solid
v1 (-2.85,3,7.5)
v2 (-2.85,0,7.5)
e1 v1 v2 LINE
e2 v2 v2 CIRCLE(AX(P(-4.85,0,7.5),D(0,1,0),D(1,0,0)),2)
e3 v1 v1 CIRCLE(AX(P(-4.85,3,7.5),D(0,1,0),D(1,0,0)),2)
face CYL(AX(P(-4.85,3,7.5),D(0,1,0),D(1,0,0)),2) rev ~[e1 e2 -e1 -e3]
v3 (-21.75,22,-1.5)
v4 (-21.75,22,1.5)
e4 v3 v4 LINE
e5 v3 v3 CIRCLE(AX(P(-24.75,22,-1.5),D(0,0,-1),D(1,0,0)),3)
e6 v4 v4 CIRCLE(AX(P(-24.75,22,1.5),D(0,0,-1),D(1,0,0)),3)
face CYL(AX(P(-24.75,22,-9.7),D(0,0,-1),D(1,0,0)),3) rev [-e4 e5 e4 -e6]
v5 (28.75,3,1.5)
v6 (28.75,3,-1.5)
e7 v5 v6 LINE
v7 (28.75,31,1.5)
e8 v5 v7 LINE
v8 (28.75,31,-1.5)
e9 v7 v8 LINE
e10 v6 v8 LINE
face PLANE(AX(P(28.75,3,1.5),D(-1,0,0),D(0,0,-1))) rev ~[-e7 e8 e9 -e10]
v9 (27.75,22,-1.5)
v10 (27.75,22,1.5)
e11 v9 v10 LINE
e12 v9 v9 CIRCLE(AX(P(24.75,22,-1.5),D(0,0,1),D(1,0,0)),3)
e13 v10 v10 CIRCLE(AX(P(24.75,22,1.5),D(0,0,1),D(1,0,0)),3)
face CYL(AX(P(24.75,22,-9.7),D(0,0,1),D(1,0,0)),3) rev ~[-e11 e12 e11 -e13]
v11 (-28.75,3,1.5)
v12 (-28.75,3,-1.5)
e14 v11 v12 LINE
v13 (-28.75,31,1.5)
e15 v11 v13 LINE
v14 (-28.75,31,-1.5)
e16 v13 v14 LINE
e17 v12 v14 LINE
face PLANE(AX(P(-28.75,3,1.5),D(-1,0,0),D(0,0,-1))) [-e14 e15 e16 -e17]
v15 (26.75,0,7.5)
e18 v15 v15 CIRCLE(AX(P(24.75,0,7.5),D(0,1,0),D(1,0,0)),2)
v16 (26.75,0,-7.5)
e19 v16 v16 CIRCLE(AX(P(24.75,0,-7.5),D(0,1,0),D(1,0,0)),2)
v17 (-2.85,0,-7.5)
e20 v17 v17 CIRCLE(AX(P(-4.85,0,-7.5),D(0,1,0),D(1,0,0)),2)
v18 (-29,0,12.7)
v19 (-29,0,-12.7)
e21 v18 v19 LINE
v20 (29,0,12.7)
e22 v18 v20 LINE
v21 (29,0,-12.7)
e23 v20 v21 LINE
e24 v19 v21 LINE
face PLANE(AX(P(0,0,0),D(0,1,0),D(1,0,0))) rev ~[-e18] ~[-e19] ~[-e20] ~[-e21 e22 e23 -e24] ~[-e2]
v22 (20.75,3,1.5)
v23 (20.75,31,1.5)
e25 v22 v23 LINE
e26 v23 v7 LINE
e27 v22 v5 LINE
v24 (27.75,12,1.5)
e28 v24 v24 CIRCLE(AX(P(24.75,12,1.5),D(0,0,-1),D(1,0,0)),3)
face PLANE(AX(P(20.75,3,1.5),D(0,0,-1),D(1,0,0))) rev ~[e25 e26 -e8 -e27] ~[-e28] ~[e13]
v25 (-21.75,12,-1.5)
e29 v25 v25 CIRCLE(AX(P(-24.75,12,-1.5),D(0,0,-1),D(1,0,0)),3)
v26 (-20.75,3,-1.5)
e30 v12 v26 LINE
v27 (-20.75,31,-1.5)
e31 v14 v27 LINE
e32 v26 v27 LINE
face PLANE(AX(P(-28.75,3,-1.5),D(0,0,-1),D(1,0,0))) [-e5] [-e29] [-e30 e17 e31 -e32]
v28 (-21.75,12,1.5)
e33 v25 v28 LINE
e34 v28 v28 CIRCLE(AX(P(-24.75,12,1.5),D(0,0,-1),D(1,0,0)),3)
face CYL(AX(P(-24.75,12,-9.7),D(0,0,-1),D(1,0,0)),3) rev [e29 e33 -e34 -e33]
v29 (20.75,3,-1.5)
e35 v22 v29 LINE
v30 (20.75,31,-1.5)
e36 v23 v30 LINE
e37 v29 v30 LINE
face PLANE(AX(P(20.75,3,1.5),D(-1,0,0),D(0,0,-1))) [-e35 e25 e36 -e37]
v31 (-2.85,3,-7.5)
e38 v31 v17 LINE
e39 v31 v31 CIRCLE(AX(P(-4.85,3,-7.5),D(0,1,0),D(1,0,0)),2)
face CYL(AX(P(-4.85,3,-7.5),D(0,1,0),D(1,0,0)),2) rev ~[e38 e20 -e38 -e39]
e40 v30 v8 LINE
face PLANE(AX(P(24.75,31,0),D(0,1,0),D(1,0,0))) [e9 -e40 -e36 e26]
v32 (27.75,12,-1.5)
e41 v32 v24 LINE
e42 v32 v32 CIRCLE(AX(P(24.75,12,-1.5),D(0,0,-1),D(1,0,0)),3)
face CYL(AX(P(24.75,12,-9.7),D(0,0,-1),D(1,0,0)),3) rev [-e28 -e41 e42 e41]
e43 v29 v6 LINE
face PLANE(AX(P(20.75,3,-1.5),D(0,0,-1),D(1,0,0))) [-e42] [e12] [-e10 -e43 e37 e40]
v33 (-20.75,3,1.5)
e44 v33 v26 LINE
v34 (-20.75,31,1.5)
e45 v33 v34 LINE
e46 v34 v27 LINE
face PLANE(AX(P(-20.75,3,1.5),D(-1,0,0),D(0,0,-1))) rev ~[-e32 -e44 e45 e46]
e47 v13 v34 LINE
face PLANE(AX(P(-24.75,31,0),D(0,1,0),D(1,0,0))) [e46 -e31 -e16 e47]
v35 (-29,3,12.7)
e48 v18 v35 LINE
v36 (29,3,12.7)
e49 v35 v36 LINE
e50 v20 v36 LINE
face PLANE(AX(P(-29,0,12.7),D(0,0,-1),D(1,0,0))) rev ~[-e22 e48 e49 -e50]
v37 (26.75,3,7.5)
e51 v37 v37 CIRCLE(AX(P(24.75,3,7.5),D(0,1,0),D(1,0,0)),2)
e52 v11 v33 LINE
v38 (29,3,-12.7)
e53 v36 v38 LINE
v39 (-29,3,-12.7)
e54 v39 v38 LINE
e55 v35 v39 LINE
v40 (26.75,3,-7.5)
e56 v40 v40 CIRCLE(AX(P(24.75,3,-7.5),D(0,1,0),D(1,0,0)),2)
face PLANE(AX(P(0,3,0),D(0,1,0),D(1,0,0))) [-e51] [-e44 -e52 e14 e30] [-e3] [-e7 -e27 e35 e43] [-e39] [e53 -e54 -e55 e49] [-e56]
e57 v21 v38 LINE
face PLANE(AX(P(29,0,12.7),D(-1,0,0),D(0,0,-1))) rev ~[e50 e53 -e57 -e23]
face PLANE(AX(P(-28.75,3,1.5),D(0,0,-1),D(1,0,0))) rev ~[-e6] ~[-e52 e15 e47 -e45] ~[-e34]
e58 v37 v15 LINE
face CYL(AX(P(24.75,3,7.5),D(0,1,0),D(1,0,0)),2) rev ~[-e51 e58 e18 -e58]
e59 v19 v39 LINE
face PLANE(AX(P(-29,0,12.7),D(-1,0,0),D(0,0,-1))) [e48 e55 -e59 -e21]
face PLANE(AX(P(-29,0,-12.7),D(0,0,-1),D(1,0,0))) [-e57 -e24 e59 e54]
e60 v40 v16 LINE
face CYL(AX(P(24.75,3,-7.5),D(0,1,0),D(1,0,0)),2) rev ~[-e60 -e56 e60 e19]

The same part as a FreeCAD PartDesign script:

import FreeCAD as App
import Part
import Sketcher

V = App.Vector
Q = App.Units.Quantity


def add_polygon(sketch, points):
    """Adds a closed chain of lines whose ends are joined by coincident constraints."""
    first, n = sketch.GeometryCount, len(points)
    for a, b in zip(points, points[1:] + points[:1]):
        sketch.addGeometry(Part.LineSegment(App.Vector(*a, 0), App.Vector(*b, 0)), False)
    for i in range(n):
        sketch.addConstraint(Sketcher.Constraint("Coincident", first + i, 2, first + (i + 1) % n, 1))

doc = App.newDocument("Part")
body = doc.addObject("PartDesign::Body", "Body")

sketch1 = body.newObject("Sketcher::SketchObject", "Sketch")
sketch1.AttachmentSupport = (doc.getObject("XZ_Plane"), [""])
sketch1.MapMode = "FlatFace"
add_polygon(sketch1, [(-29, -13), (-29, 13), (29, 13), (29, -13)])
sketch1.addConstraint([
    Sketcher.Constraint("Vertical", 0),
    Sketcher.Constraint("Horizontal", 1),
    Sketcher.Constraint("Vertical", 2),
    Sketcher.Constraint("Horizontal", 3),
    Sketcher.Constraint("Symmetric", 0, 2, 2, 2, -1, 1),
    Sketcher.Constraint("DistanceX", 1, 1, 1, 2, Q("58 mm")),
    Sketcher.Constraint("DistanceY", 0, 1, 0, 2, Q("25.4 mm")),
])
pad1 = body.newObject("PartDesign::Pad", "Pad")
pad1.Profile = sketch1
pad1.Length = 3
pad1.Reversed = True

sketch2 = body.newObject("Sketcher::SketchObject", "Sketch001")
sketch2.AttachmentSupport = (doc.getObject("XZ_Plane"), [""])
sketch2.MapMode = "FlatFace"
sketch2.AttachmentOffset = App.Placement(V(0, 0, -3), App.Rotation())
add_polygon(sketch2, [(-28.8, -12.7), (-28.8, -9.7), (-20.8, -9.7), (-20.8, -12.7)])
add_polygon(sketch2, [(20.8, -12.7), (20.8, -9.7), (28.8, -9.7), (28.8, -12.7)])
add_polygon(sketch2, [(-28.8, -1.5), (-28.8, 1.5), (-20.8, 1.5), (-20.8, -1.5)])
add_polygon(sketch2, [(20.8, -1.5), (20.8, 1.5), (28.8, 1.5), (28.8, -1.5)])
sketch2.addConstraint([
    Sketcher.Constraint("Vertical", 0),
    Sketcher.Constraint("Horizontal", 1),
    Sketcher.Constraint("Vertical", 2),
    Sketcher.Constraint("Horizontal", 3),
    Sketcher.Constraint("Vertical", 4),
    Sketcher.Constraint("Horizontal", 5),
    Sketcher.Constraint("Vertical", 6),
    Sketcher.Constraint("Horizontal", 7),
    Sketcher.Constraint("Vertical", 8),
    Sketcher.Constraint("Horizontal", 9),
    Sketcher.Constraint("Vertical", 10),
    Sketcher.Constraint("Horizontal", 11),
    Sketcher.Constraint("Vertical", 12),
    Sketcher.Constraint("Horizontal", 13),
    Sketcher.Constraint("Vertical", 14),
    Sketcher.Constraint("Horizontal", 15),
    Sketcher.Constraint("Symmetric", 10, 2, 12, 2, -1, 1),
    Sketcher.Constraint("Symmetric", 8, 2, 14, 2, -1, 1),
    Sketcher.Constraint("Symmetric", 1, 2, 4, 2, -2),
    Sketcher.Constraint("Symmetric", 3, 2, 6, 2, -2),
    Sketcher.Constraint("Horizontal", 9, 2, 12, 2),
    Sketcher.Constraint("Vertical", 3, 2, 8, 2),
    Sketcher.Constraint("Vertical", 2, 2, 9, 2),
    Sketcher.Constraint("Equal", 6, 8),
    Sketcher.Constraint("DistanceX", 1, 1, 1, 2, Q("8 mm")),
    Sketcher.Constraint("DistanceY", 0, 1, 0, 2, Q("3 mm")),
    Sketcher.Constraint("DistanceY", 0, 2, -1, 1, Q("9.7 mm")),
    Sketcher.Constraint("DistanceX", 1, 2, 4, 2, Q("41.5 mm")),
])
pad2 = body.newObject("PartDesign::Pad", "Pad001")
pad2.Profile = sketch2
pad2.Length = 28
pad2.Reversed = True

sketch3 = body.newObject("Sketcher::SketchObject", "Sketch002")
sketch3.AttachmentSupport = (doc.getObject("XY_Plane"), [""])
sketch3.MapMode = "FlatFace"
sketch3.AttachmentOffset = App.Placement(V(0, 0, -9.7), App.Rotation())
sketch3.addGeometry([
    Part.Circle(V(-24.8, 12, 0), V(0, 0, 1), 3),
    Part.Circle(V(-24.8, 22, 0), V(0, 0, 1), 3),
    Part.Circle(V(24.8, 12, 0), V(0, 0, 1), 3),
    Part.Circle(V(24.8, 22, 0), V(0, 0, 1), 3),
], False)
sketch3.addConstraint([
    Sketcher.Constraint("Equal", 0, 1),
    Sketcher.Constraint("Equal", 1, 2),
    Sketcher.Constraint("Equal", 2, 3),
    Sketcher.Constraint("Symmetric", 0, 3, 2, 3, -2),
    Sketcher.Constraint("Symmetric", 1, 3, 3, 3, -2),
    Sketcher.Constraint("Vertical", 0, 3, 1, 3),
    Sketcher.Constraint("Diameter", 0, Q("6 mm")),
    Sketcher.Constraint("DistanceY", -1, 1, 0, 3, Q("12 mm")),
    Sketcher.Constraint("DistanceY", -1, 1, 1, 3, Q("22 mm")),
    Sketcher.Constraint("DistanceX", 0, 3, 2, 3, Q("49.5 mm")),
])
pocket1 = body.newObject("PartDesign::Pocket", "Pocket")
pocket1.Profile = sketch3
pocket1.Length = 24
pocket1.Midplane = True

sketch4 = body.newObject("Sketcher::SketchObject", "Sketch003")
sketch4.AttachmentSupport = (doc.getObject("XZ_Plane"), [""])
sketch4.MapMode = "FlatFace"
sketch4.AttachmentOffset = App.Placement(V(0, 0, -3), App.Rotation())
sketch4.addGeometry([
    Part.Circle(V(24.8, 7.5, 0), V(0, 0, 1), 2),
    Part.Circle(V(24.8, -7.5, 0), V(0, 0, 1), 2),
    Part.Circle(V(-4.8, -7.5, 0), V(0, 0, 1), 2),
    Part.Circle(V(-4.8, 7.5, 0), V(0, 0, 1), 2),
], False)
sketch4.addConstraint([
    Sketcher.Constraint("Equal", 0, 1),
    Sketcher.Constraint("Equal", 1, 2),
    Sketcher.Constraint("Equal", 2, 3),
    Sketcher.Constraint("Symmetric", 0, 3, 1, 3, -1),
    Sketcher.Constraint("Symmetric", 2, 3, 3, 3, -1),
    Sketcher.Constraint("Horizontal", 1, 3, 2, 3),
    Sketcher.Constraint("Diameter", 0, Q("4 mm")),
    Sketcher.Constraint("DistanceY", 1, 3, 0, 3, Q("15 mm")),
    Sketcher.Constraint("DistanceX", 2, 3, 1, 3, Q("29.6 mm")),
    Sketcher.Constraint("DistanceX", -1, 1, 0, 3, Q("24.75 mm")),
])
pocket2 = body.newObject("PartDesign::Pocket", "Pocket001")
pocket2.Profile = sketch4
pocket2.Length = 22
pocket2.Reversed = True

sketch5 = body.newObject("Sketcher::SketchObject", "Sketch004")
sketch5.AttachmentSupport = (doc.getObject("XZ_Plane"), [""])
sketch5.MapMode = "FlatFace"
sketch5.AttachmentOffset = App.Placement(V(0, 0, -31), App.Rotation())
add_polygon(sketch5, [(-28.8, -12.7), (-28.8, -9.7), (-20.8, -9.7), (-20.8, -12.7)])
add_polygon(sketch5, [(20.8, -12.7), (20.8, -9.7), (28.8, -9.7), (28.8, -12.7)])
sketch5.addConstraint([
    Sketcher.Constraint("Vertical", 0),
    Sketcher.Constraint("Horizontal", 1),
    Sketcher.Constraint("Vertical", 2),
    Sketcher.Constraint("Horizontal", 3),
    Sketcher.Constraint("Vertical", 4),
    Sketcher.Constraint("Horizontal", 5),
    Sketcher.Constraint("Vertical", 6),
    Sketcher.Constraint("Horizontal", 7),
    Sketcher.Constraint("Symmetric", 1, 2, 4, 2, -2),
    Sketcher.Constraint("Symmetric", 3, 2, 6, 2, -2),
    Sketcher.Constraint("DistanceX", 1, 1, 1, 2, Q("8 mm")),
    Sketcher.Constraint("DistanceY", 0, 1, 0, 2, Q("3 mm")),
    Sketcher.Constraint("DistanceY", 0, 2, -1, 1, Q("9.7 mm")),
    Sketcher.Constraint("DistanceX", 1, 2, 4, 2, Q("41.5 mm")),
])
pocket3 = body.newObject("PartDesign::Pocket", "Pocket002")
pocket3.Profile = sketch5
pocket3.Length = 28
pocket3.Reversed = True

doc.recompute()
